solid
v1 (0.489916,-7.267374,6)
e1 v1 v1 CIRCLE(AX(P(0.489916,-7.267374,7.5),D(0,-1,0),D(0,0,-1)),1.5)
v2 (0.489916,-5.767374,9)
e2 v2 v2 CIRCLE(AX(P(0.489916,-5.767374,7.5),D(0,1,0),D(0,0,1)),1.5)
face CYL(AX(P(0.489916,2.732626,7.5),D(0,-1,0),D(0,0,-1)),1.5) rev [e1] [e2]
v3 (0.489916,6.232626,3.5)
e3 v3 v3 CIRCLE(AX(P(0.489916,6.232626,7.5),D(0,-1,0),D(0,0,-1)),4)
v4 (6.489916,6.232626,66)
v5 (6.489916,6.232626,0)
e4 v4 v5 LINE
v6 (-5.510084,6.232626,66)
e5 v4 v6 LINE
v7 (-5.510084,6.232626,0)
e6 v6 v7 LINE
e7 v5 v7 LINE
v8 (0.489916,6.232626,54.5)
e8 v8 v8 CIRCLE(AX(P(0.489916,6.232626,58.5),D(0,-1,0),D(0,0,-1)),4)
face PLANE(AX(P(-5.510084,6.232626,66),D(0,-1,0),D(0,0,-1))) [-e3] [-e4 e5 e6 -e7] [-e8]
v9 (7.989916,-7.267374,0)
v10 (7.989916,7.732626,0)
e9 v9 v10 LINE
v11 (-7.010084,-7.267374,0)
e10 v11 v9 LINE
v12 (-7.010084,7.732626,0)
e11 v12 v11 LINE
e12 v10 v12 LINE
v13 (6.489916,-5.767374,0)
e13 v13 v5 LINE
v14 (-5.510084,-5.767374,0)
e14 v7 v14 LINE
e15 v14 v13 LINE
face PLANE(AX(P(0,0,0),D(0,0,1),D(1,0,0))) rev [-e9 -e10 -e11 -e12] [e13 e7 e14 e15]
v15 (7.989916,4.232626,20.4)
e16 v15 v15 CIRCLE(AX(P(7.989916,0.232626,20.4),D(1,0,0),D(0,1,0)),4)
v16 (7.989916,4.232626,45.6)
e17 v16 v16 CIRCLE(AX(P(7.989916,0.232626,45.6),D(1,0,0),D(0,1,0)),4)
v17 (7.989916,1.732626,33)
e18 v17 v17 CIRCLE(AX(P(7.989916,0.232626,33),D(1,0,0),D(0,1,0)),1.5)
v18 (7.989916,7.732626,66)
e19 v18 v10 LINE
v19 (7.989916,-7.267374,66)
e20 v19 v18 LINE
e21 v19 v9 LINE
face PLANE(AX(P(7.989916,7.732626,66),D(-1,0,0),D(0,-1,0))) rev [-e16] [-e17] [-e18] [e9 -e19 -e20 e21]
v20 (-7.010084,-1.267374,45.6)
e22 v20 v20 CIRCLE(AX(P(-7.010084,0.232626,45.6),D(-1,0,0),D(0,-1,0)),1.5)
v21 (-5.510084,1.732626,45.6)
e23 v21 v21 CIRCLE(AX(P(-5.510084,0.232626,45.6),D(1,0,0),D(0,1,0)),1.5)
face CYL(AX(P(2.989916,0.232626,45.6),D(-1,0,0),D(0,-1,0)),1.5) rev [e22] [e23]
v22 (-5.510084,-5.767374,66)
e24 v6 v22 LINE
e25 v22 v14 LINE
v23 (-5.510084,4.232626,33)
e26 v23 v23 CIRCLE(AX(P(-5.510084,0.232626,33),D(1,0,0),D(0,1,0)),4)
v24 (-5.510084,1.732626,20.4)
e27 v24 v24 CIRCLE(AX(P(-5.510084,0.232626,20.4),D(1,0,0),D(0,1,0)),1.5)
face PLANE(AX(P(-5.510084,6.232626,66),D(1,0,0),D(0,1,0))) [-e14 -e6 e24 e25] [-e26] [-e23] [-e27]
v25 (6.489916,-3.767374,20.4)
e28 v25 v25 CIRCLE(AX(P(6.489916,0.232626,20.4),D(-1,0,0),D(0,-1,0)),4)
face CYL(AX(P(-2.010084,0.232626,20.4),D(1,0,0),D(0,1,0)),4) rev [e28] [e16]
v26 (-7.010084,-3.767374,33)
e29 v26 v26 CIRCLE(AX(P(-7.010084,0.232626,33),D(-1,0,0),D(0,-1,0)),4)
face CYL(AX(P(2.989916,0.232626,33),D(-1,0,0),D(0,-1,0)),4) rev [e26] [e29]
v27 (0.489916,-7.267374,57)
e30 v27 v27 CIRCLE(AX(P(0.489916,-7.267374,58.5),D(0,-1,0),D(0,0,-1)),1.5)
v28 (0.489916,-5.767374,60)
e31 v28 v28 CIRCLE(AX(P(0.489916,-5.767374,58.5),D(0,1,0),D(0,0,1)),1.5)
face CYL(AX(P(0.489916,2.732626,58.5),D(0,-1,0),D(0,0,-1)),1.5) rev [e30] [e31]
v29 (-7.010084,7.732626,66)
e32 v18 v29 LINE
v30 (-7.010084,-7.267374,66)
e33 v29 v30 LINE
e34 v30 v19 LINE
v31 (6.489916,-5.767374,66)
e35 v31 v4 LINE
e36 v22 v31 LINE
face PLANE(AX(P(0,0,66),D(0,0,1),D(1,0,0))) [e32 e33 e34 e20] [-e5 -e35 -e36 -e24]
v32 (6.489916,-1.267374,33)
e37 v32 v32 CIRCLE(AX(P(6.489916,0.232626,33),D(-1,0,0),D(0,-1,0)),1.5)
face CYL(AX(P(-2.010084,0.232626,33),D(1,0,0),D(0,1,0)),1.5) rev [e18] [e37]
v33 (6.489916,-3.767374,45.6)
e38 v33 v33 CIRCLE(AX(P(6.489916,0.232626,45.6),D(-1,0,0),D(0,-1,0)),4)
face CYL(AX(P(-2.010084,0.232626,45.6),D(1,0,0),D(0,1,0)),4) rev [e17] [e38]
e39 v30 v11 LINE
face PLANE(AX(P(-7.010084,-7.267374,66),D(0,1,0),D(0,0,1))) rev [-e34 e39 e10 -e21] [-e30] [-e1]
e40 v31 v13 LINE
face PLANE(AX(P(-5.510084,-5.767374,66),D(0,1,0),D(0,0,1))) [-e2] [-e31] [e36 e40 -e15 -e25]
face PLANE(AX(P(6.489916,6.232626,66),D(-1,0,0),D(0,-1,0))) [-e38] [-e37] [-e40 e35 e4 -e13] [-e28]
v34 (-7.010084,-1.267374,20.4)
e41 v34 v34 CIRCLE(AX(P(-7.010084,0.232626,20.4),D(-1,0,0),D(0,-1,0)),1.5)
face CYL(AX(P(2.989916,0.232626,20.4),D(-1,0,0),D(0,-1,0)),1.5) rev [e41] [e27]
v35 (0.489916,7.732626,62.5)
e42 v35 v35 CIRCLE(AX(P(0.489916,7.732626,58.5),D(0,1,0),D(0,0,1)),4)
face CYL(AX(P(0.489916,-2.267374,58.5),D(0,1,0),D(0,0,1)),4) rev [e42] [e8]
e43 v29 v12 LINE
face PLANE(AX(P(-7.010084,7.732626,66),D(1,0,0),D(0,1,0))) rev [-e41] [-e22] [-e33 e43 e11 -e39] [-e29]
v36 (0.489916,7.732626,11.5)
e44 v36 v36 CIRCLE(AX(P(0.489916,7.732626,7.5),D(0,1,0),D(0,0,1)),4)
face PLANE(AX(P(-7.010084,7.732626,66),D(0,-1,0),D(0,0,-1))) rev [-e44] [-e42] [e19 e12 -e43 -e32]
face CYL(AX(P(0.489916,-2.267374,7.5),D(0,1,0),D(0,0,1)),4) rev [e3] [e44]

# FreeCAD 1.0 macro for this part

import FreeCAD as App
import Part
import Sketcher
from FreeCAD import Vector

doc = App.newDocument("Part")
params = doc.addObject("Spreadsheet::Sheet", "Params")
for row, (alias, value) in enumerate([
    ("sketch1_width", "15 mm"),
    ("sketch1_width2", "12 mm"),
    ("pad1_length", "66 mm"),
    ("sketch2_diameter", "8 mm"),
    ("pocket1_length", "10 mm"),
    ("sketch3_diameter", "8 mm"),
    ("pocket2_length", "10 mm"),
    ("sketch4_diameter", "8 mm"),
    ("pocket3_length", "10 mm"),
    ("sketch5_diameter", "3 mm"),
    ("pocket4_length", "10 mm"),
    ("sketch6_diameter", "3 mm"),
    ("pocket5_length", "10 mm"),
    ("sketch7_diameter", "3 mm"),
    ("pocket6_length", "10 mm"),
    ("sketch8_diameter", "8 mm"),
    ("pocket7_length", "10 mm"),
], start=1):
    params.set(f"A{row}", alias)
    params.set(f"B{row}", "=" + value)
    params.setAlias(f"B{row}", alias)

body = doc.addObject("PartDesign::Body", "Body")

# Sketch on XY plane
sketch1 = body.newObject("Sketcher::SketchObject", "Sketch")
sketch1.AttachmentSupport = (doc.getObject("XY_Plane"), [""])
sketch1.MapMode = "FlatFace"
sketch1.addGeometry([
    Part.LineSegment(Vector(-7.010084, 7.732626, 0), Vector(-7.010084, -7.267374, 0)),  # 0
    Part.LineSegment(Vector(-7.010084, -7.267374, 0), Vector(7.989916, -7.267374, 0)),  # 1
    Part.LineSegment(Vector(7.989916, -7.267374, 0), Vector(7.989916, 7.732626, 0)),  # 2
    Part.LineSegment(Vector(7.989916, 7.732626, 0), Vector(-7.010084, 7.732626, 0)),  # 3
    Part.LineSegment(Vector(6.489916, -5.767374, 0), Vector(-5.510084, -5.767374, 0)),  # 4
    Part.LineSegment(Vector(-5.510084, -5.767374, 0), Vector(-5.510084, 6.232626, 0)),  # 5
    Part.LineSegment(Vector(-5.510084, 6.232626, 0), Vector(6.489916, 6.232626, 0)),  # 6
    Part.LineSegment(Vector(6.489916, 6.232626, 0), Vector(6.489916, -5.767374, 0)),  # 7
], False)
sketch1.addConstraint([
    Sketcher.Constraint("Coincident", 0, 2, 1, 1),
    Sketcher.Constraint("Coincident", 1, 2, 2, 1),
    Sketcher.Constraint("Coincident", 2, 2, 3, 1),
    Sketcher.Constraint("Coincident", 3, 2, 0, 1),
    Sketcher.Constraint("Coincident", 4, 2, 5, 1),
    Sketcher.Constraint("Coincident", 5, 2, 6, 1),
    Sketcher.Constraint("Coincident", 6, 2, 7, 1),
    Sketcher.Constraint("Coincident", 7, 2, 4, 1),
    Sketcher.Constraint("Vertical", 0),
    Sketcher.Constraint("Horizontal", 1),
    Sketcher.Constraint("Vertical", 2),
    Sketcher.Constraint("Horizontal", 3),
    Sketcher.Constraint("Horizontal", 4),
    Sketcher.Constraint("Vertical", 5),
    Sketcher.Constraint("Horizontal", 6),
    Sketcher.Constraint("Vertical", 7),
    Sketcher.Constraint("Equal", 3, 0),
    Sketcher.Constraint("Equal", 6, 5),
    Sketcher.Constraint("DistanceX", 1, 1, 1, 2, 15.0),
    Sketcher.Constraint("DistanceX", 4, 2, 4, 1, 12.0),
    Sketcher.Constraint("DistanceX", 0, 2, 4, 2, 1.5),
    Sketcher.Constraint("DistanceY", 0, 2, 4, 2, 1.5),
    Sketcher.Constraint("DistanceX", 0, 2, -1, 1, 7.010084),
    Sketcher.Constraint("DistanceY", 0, 2, -1, 1, 7.267374),
])
sketch1.setExpression("Constraints[18]", "Params.sketch1_width")
sketch1.setExpression("Constraints[19]", "Params.sketch1_width2")
pad1 = body.newObject("PartDesign::Pad", "Pad")
pad1.Profile = sketch1
pad1.setExpression("Length", "Params.pad1_length")

# Sketch on XZ plane
sketch2 = body.newObject("Sketcher::SketchObject", "Sketch001")
sketch2.AttachmentSupport = (doc.getObject("XZ_Plane"), [""])
sketch2.MapMode = "FlatFace"
sketch2.AttachmentOffset = App.Placement(Vector(0, 0, -7.732626), App.Rotation())
sketch2.addGeometry(Part.Circle(Vector(0.489916, 58.5, 0), Vector(0, 0, 1), 4), False)
sketch2.addConstraint([
    Sketcher.Constraint("Diameter", 0, 8.0),
    Sketcher.Constraint("DistanceY", -1, 1, 0, 3, 58.5),
    Sketcher.Constraint("DistanceX", -1, 1, 0, 3, 0.489916),
])
sketch2.setExpression("Constraints[0]", "Params.sketch2_diameter")
pocket1 = body.newObject("PartDesign::Pocket", "Pocket")
pocket1.Profile = sketch2
pocket1.setExpression("Length", "Params.pocket1_length")
pocket1.Reversed = True

# Sketch on XZ plane
sketch3 = body.newObject("Sketcher::SketchObject", "Sketch002")
sketch3.AttachmentSupport = (doc.getObject("XZ_Plane"), [""])
sketch3.MapMode = "FlatFace"
sketch3.AttachmentOffset = App.Placement(Vector(0, 0, -7.732626), App.Rotation())
sketch3.addGeometry(Part.Circle(Vector(0.489916, 7.5, 0), Vector(0, 0, 1), 4), False)
sketch3.addConstraint([
    Sketcher.Constraint("Diameter", 0, 8.0),
    Sketcher.Constraint("DistanceY", -1, 1, 0, 3, 7.5),
    Sketcher.Constraint("DistanceX", -1, 1, 0, 3, 0.489916),
])
sketch3.setExpression("Constraints[0]", "Params.sketch3_diameter")
pocket2 = body.newObject("PartDesign::Pocket", "Pocket001")
pocket2.Profile = sketch3
pocket2.setExpression("Length", "Params.pocket2_length")
pocket2.Reversed = True

# Sketch on YZ plane
sketch4 = body.newObject("Sketcher::SketchObject", "Sketch003")
sketch4.AttachmentSupport = (doc.getObject("YZ_Plane"), [""])
sketch4.MapMode = "FlatFace"
sketch4.AttachmentOffset = App.Placement(Vector(0, 0, -7.010084), App.Rotation())
sketch4.addGeometry(Part.Circle(Vector(0.232626, 33, 0), Vector(0, 0, 1), 4), False)
sketch4.addConstraint([
    Sketcher.Constraint("Diameter", 0, 8.0),
    Sketcher.Constraint("DistanceY", -1, 1, 0, 3, 33.0),
    Sketcher.Constraint("DistanceX", -1, 1, 0, 3, 0.232626),
])
sketch4.setExpression("Constraints[0]", "Params.sketch4_diameter")
pocket3 = body.newObject("PartDesign::Pocket", "Pocket002")
pocket3.Profile = sketch4
pocket3.setExpression("Length", "Params.pocket3_length")
pocket3.Reversed = True

# Sketch on YZ plane
sketch5 = body.newObject("Sketcher::SketchObject", "Sketch004")
sketch5.AttachmentSupport = (doc.getObject("YZ_Plane"), [""])
sketch5.MapMode = "FlatFace"
sketch5.AttachmentOffset = App.Placement(Vector(0, 0, 7.989916), App.Rotation())
sketch5.addGeometry(Part.Circle(Vector(0.232626, 33, 0), Vector(0, 0, 1), 1.5), False)
sketch5.addConstraint([
    Sketcher.Constraint("Diameter", 0, 3.0),
    Sketcher.Constraint("DistanceY", -1, 1, 0, 3, 33.0),
    Sketcher.Constraint("DistanceX", -1, 1, 0, 3, 0.232626),
])
sketch5.setExpression("Constraints[0]", "Params.sketch5_diameter")
pocket4 = body.newObject("PartDesign::Pocket", "Pocket003")
pocket4.Profile = sketch5
pocket4.setExpression("Length", "Params.pocket4_length")

# Sketch on XZ plane
sketch6 = body.newObject("Sketcher::SketchObject", "Sketch005")
sketch6.AttachmentSupport = (doc.getObject("XZ_Plane"), [""])
sketch6.MapMode = "FlatFace"
sketch6.AttachmentOffset = App.Placement(Vector(0, 0, 7.267374), App.Rotation())
sketch6.addGeometry([
    Part.Circle(Vector(0.489916, 58.5, 0), Vector(0, 0, 1), 1.5),
    Part.Circle(Vector(0.489916, 7.5, 0), Vector(0, 0, 1), 1.5),
], False)
sketch6.addConstraint([
    Sketcher.Constraint("Equal", 0, 1),
    Sketcher.Constraint("Vertical", 0, 3, 1, 3),
    Sketcher.Constraint("Diameter", 0, 3.0),
    Sketcher.Constraint("DistanceY", 1, 3, 0, 3, 51.0),
    Sketcher.Constraint("DistanceY", -1, 1, 0, 3, 58.5),
    Sketcher.Constraint("DistanceX", -1, 1, 0, 3, 0.489916),
])
sketch6.setExpression("Constraints[2]", "Params.sketch6_diameter")
pocket5 = body.newObject("PartDesign::Pocket", "Pocket004")
pocket5.Profile = sketch6
pocket5.setExpression("Length", "Params.pocket5_length")

# Sketch on YZ plane
sketch7 = body.newObject("Sketcher::SketchObject", "Sketch006")
sketch7.AttachmentSupport = (doc.getObject("YZ_Plane"), [""])
sketch7.MapMode = "FlatFace"
sketch7.AttachmentOffset = App.Placement(Vector(0, 0, -7.010084), App.Rotation())
sketch7.addGeometry([
    Part.Circle(Vector(0.232626, 45.6, 0), Vector(0, 0, 1), 1.5),
    Part.Circle(Vector(0.232626, 20.4, 0), Vector(0, 0, 1), 1.5),
], False)
sketch7.addConstraint([
    Sketcher.Constraint("Equal", 0, 1),
    Sketcher.Constraint("Vertical", 0, 3, 1, 3),
    Sketcher.Constraint("Diameter", 0, 3.0),
    Sketcher.Constraint("DistanceY", -1, 1, 0, 3, 45.6),
    Sketcher.Constraint("DistanceY", -1, 1, 1, 3, 20.4),
    Sketcher.Constraint("DistanceX", -1, 1, 0, 3, 0.232626),
])
sketch7.setExpression("Constraints[2]", "Params.sketch7_diameter")
pocket6 = body.newObject("PartDesign::Pocket", "Pocket005")
pocket6.Profile = sketch7
pocket6.setExpression("Length", "Params.pocket6_length")
pocket6.Reversed = True

# Sketch on YZ plane
sketch8 = body.newObject("Sketcher::SketchObject", "Sketch007")
sketch8.AttachmentSupport = (doc.getObject("YZ_Plane"), [""])
sketch8.MapMode = "FlatFace"
sketch8.AttachmentOffset = App.Placement(Vector(0, 0, 7.989916), App.Rotation())
sketch8.addGeometry([
    Part.Circle(Vector(0.232626, 20.4, 0), Vector(0, 0, 1), 4),
    Part.Circle(Vector(0.232626, 45.6, 0), Vector(0, 0, 1), 4),
], False)
sketch8.addConstraint([
    Sketcher.Constraint("Equal", 0, 1),
    Sketcher.Constraint("Vertical", 0, 3, 1, 3),
    Sketcher.Constraint("Diameter", 0, 8.0),
    Sketcher.Constraint("DistanceY", -1, 1, 0, 3, 20.4),
    Sketcher.Constraint("DistanceY", -1, 1, 1, 3, 45.6),
    Sketcher.Constraint("DistanceX", -1, 1, 0, 3, 0.232626),
])
sketch8.setExpression("Constraints[2]", "Params.sketch8_diameter")
pocket7 = body.newObject("PartDesign::Pocket", "Pocket006")
pocket7.Profile = sketch8
pocket7.setExpression("Length", "Params.pocket7_length")

doc.recompute()
